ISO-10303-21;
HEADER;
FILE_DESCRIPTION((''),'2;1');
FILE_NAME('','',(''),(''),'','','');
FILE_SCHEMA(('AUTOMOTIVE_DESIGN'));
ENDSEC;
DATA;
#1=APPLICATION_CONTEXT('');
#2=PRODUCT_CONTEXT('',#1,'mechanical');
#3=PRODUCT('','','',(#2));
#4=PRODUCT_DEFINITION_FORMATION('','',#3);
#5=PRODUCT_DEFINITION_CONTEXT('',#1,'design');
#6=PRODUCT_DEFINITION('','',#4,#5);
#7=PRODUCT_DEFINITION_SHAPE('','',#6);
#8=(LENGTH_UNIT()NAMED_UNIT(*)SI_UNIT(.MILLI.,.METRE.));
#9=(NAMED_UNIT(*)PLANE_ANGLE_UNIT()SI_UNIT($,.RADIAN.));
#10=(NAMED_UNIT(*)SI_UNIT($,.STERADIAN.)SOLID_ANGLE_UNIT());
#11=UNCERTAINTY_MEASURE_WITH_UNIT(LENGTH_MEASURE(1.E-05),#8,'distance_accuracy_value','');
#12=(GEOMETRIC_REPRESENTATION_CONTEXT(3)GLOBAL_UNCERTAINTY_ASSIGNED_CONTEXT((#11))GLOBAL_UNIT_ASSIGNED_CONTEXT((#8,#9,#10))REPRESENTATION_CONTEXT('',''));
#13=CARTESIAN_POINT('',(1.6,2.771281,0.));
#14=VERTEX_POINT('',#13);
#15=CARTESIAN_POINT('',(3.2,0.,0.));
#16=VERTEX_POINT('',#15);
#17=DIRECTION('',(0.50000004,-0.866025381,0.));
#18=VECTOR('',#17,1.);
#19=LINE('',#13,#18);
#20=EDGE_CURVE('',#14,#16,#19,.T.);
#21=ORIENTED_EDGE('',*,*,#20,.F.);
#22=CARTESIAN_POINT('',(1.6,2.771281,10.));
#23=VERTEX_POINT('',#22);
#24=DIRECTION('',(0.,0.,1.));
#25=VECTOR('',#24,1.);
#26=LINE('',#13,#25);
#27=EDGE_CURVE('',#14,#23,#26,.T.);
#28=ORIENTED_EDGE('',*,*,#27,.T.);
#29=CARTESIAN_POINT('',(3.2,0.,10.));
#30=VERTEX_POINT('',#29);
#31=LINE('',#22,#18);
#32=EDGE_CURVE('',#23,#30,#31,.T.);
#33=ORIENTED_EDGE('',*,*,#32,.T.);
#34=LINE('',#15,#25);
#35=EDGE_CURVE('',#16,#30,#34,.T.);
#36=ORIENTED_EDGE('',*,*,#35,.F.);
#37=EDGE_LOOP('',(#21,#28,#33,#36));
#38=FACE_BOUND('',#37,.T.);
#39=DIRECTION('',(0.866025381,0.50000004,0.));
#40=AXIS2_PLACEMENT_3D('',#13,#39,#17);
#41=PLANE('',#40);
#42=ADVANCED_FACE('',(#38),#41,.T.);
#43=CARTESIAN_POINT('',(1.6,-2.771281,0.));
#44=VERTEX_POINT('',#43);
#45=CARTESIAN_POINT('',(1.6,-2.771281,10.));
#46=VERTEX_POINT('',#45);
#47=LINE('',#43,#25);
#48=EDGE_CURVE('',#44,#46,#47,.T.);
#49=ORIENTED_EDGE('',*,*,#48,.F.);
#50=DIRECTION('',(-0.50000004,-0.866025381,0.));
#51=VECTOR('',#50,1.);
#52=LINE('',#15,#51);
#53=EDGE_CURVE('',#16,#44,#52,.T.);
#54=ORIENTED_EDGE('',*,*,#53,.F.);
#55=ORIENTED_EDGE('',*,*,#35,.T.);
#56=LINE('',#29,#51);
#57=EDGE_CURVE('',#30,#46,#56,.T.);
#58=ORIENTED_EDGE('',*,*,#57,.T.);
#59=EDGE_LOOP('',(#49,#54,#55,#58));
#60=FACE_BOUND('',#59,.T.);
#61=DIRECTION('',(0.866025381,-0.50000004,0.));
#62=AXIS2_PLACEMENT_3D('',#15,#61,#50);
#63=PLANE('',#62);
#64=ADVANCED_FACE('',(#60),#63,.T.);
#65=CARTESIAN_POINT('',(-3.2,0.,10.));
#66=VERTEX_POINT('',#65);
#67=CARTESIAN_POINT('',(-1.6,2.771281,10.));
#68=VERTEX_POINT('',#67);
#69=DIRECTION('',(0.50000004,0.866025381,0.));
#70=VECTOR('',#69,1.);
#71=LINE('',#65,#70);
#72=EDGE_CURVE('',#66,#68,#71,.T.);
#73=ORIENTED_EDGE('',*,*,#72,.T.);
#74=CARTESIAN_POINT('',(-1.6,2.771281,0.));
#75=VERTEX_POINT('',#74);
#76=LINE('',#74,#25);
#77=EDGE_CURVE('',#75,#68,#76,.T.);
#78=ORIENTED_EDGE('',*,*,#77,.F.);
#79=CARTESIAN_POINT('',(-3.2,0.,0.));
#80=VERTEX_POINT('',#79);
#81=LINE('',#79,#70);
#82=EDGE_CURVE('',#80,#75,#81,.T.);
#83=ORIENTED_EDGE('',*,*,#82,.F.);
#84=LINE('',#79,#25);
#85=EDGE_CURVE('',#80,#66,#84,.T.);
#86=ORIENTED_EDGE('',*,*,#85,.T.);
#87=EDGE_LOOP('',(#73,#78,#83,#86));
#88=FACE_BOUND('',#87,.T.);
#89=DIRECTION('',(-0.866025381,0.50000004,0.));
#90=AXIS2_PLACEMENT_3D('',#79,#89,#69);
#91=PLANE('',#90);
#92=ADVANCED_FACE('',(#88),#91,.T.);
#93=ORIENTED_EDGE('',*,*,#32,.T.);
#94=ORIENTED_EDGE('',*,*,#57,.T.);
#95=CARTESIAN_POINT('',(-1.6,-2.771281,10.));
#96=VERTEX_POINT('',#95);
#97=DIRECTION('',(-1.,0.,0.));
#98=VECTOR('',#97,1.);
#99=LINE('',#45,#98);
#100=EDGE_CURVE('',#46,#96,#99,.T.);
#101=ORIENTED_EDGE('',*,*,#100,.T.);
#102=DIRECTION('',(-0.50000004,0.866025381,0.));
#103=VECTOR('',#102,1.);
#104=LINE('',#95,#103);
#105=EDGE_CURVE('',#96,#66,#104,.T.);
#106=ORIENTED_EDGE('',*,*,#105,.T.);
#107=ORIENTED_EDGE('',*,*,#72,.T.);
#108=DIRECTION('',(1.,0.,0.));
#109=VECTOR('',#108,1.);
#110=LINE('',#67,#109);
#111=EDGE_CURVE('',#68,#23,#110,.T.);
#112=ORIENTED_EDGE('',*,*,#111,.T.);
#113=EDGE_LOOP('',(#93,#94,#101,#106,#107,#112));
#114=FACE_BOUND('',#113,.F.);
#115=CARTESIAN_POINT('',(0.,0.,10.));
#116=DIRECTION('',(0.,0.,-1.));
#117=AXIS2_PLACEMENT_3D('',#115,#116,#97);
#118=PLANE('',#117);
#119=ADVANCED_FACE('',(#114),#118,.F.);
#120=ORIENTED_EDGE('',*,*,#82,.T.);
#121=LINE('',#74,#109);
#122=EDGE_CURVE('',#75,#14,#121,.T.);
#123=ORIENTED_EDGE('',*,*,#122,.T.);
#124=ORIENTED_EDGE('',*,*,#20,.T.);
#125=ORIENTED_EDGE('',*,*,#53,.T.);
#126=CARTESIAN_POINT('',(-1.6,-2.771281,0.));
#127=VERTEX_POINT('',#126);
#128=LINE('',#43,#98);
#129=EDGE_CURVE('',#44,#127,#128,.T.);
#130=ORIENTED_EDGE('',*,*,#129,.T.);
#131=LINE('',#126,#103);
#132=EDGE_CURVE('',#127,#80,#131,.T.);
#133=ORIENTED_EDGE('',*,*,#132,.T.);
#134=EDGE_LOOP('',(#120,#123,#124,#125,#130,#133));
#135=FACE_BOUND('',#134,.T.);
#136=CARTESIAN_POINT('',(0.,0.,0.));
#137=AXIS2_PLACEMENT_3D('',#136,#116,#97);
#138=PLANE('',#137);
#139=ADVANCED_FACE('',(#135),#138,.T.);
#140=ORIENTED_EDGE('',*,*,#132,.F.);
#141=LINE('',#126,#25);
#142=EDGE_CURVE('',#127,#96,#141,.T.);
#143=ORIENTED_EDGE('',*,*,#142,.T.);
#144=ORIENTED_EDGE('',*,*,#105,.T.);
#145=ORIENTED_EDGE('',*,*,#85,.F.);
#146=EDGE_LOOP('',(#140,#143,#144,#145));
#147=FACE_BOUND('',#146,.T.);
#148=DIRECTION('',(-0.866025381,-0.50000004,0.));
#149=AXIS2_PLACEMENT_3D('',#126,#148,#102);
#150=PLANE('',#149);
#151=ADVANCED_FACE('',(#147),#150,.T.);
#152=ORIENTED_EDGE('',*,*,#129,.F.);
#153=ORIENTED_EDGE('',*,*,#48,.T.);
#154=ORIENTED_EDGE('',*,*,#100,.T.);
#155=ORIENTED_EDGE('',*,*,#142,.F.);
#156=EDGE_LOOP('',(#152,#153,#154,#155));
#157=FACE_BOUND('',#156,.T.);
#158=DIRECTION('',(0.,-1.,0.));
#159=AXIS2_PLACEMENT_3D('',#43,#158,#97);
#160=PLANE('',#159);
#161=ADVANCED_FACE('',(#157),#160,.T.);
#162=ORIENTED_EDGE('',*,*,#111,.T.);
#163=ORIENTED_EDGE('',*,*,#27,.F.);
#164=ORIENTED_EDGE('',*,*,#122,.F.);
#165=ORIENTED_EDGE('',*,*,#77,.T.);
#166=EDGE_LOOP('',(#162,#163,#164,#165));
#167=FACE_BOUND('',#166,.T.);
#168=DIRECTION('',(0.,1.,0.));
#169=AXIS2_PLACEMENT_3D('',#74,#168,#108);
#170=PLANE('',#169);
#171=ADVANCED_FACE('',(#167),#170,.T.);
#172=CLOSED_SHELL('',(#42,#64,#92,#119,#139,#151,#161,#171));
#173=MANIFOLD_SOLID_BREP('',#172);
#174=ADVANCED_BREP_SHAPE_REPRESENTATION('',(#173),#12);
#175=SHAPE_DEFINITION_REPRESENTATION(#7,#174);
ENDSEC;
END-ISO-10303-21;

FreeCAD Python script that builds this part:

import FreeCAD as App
import Part
import Sketcher
Q = App.Units.Quantity


def add_polygon(sketch, points):
    """Adds a closed chain of lines whose ends are joined by coincident constraints."""
    first, n = sketch.GeometryCount, len(points)
    for a, b in zip(points, points[1:] + points[:1]):
        sketch.addGeometry(Part.LineSegment(App.Vector(*a, 0), App.Vector(*b, 0)), False)
    for i in range(n):
        sketch.addConstraint(Sketcher.Constraint("Coincident", first + i, 2, first + (i + 1) % n, 1))

doc = App.newDocument("Part")
body = doc.addObject("PartDesign::Body", "Body")

sketch1 = body.newObject("Sketcher::SketchObject", "Sketch")
sketch1.AttachmentSupport = (doc.getObject("XY_Plane"), [""])
sketch1.MapMode = "FlatFace"
add_polygon(sketch1, [(1.6, 2.771281), (-1.6, 2.771281), (-3.2, 0), (-1.6, -2.771281), (1.6, -2.771281), (3.2, 0)])
sketch1.addConstraint([
    Sketcher.Constraint("Horizontal", 0),
    Sketcher.Constraint("Horizontal", 3),
    Sketcher.Constraint("Symmetric", 0, 2, 3, 2, -1, 1),
    Sketcher.Constraint("Symmetric", 1, 2, 4, 2, -1, 1),
    Sketcher.Constraint("PointOnObject", 1, 2, -1),
    Sketcher.Constraint("Parallel", 2, 5),
    Sketcher.Constraint("Vertical", 0, 2, 2, 2),
    Sketcher.Constraint("Angle", 1, Q("-120.000003 deg")),
    Sketcher.Constraint("DistanceX", 0, 2, 0, 1, Q("3.2 mm")),
    Sketcher.Constraint("Distance", 1, Q("3.2 mm")),
])
pad1 = body.newObject("PartDesign::Pad", "Pad")
pad1.Profile = sketch1
pad1.Length = 10

doc.recompute()
